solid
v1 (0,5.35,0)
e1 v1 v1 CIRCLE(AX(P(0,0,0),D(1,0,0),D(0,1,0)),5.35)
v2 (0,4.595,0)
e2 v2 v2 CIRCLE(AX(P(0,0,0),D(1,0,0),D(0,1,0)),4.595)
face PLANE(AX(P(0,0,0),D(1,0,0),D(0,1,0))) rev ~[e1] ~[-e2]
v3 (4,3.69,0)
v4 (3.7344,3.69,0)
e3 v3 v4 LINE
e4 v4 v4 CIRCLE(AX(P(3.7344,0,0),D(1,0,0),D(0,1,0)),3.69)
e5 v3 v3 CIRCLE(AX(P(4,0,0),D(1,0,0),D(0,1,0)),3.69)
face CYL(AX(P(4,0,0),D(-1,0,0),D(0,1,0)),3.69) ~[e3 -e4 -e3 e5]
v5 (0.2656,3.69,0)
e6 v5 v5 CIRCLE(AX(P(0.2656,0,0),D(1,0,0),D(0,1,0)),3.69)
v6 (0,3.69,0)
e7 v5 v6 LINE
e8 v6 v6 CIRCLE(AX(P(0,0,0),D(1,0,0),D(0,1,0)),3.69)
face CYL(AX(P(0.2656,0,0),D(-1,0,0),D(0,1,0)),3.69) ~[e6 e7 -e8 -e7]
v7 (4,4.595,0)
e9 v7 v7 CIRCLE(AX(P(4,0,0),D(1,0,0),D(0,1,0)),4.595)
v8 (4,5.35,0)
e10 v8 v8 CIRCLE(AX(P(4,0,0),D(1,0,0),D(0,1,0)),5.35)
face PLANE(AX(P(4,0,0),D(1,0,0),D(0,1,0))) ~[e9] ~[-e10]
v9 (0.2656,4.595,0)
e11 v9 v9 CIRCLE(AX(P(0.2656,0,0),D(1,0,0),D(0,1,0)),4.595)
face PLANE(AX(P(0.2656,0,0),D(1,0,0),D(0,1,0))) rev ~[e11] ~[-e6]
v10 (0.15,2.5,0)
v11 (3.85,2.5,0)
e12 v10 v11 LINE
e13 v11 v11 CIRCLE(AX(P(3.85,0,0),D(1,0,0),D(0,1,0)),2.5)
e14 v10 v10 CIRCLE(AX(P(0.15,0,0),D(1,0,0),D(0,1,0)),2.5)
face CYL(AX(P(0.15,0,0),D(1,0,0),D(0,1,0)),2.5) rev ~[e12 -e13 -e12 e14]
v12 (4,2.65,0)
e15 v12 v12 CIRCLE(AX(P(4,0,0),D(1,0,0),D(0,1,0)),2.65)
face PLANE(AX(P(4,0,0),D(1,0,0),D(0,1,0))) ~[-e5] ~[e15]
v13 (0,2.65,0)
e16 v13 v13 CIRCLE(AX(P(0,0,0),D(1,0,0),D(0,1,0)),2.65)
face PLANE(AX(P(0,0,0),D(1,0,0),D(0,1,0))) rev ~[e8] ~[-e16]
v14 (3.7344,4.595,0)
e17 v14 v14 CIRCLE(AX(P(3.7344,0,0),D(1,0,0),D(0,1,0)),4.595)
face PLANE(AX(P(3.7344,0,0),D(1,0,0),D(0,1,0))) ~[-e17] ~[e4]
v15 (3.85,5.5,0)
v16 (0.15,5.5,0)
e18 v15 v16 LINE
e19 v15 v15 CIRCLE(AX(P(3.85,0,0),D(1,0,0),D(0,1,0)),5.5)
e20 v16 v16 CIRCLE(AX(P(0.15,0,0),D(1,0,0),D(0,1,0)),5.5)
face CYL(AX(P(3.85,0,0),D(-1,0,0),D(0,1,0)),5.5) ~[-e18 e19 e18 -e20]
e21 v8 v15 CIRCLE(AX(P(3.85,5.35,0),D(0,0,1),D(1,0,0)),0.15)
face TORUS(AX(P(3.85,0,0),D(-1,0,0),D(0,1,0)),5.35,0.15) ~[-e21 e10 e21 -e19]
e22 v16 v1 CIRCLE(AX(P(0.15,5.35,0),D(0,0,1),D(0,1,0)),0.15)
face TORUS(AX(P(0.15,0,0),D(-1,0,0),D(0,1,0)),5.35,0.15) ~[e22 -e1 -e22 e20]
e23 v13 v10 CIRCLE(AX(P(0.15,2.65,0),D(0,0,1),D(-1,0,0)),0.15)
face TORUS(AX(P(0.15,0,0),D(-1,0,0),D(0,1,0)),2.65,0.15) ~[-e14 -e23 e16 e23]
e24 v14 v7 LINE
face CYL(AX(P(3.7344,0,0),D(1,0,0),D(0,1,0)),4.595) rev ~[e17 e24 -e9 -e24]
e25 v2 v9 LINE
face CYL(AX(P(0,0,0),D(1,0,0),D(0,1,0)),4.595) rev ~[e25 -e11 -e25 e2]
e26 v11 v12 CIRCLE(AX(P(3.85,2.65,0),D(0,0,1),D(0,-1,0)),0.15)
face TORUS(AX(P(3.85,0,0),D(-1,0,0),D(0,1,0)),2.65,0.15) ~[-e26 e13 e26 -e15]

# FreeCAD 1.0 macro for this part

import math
import FreeCAD as App
import Part
import Sketcher
from FreeCAD import Vector

doc = App.newDocument("Part")
params = doc.addObject("Spreadsheet::Sheet", "Params")
for row, (alias, value) in enumerate([
    ("sketch1_radius", "0.15 mm"),
    ("sketch1_width", "3.7 mm"),
    ("sketch1_height", "1.04 mm"),
    ("revolution_angle", "360 deg"),
], start=1):
    params.set(f"A{row}", alias)
    params.set(f"B{row}", "=" + value)
    params.setAlias(f"B{row}", alias)

body = doc.addObject("PartDesign::Body", "Body")

sketch1 = body.newObject("Sketcher::SketchObject", "Sketch")
sketch1.AttachmentSupport = (doc.getObject("XY_Plane"), [""])
sketch1.MapMode = "FlatFace"
sketch1.addGeometry(Part.LineSegment(Vector(0, 3.69, 0), Vector(0, 2.65, 0)), False)
sketch1.addGeometry(Part.ArcOfCircle(Part.Circle(Vector(0.15, 2.65, 0), Vector(0, 0, 1), 0.15), math.radians(180), math.radians(270)), False)
sketch1.addGeometry(Part.LineSegment(Vector(0.15, 2.5, 0), Vector(3.85, 2.5, 0)), False)
sketch1.addGeometry(Part.ArcOfCircle(Part.Circle(Vector(3.85, 2.65, 0), Vector(0, 0, 1), 0.15), math.radians(-90), math.radians(0)), False)
sketch1.addGeometry(Part.LineSegment(Vector(4, 2.65, 0), Vector(4, 3.69, 0)), False)
sketch1.addGeometry(Part.LineSegment(Vector(4, 3.69, 0), Vector(3.73, 3.69, 0)), False)
sketch1.addGeometry(Part.LineSegment(Vector(3.73, 3.69, 0), Vector(3.73, 4.59, 0)), False)
sketch1.addGeometry(Part.LineSegment(Vector(3.73, 4.59, 0), Vector(4, 4.59, 0)), False)
sketch1.addGeometry(Part.LineSegment(Vector(4, 4.59, 0), Vector(4, 5.35, 0)), False)
sketch1.addGeometry(Part.ArcOfCircle(Part.Circle(Vector(3.85, 5.35, 0), Vector(0, 0, 1), 0.15), math.radians(0), math.radians(90)), False)
sketch1.addGeometry(Part.LineSegment(Vector(3.85, 5.5, 0), Vector(0.15, 5.5, 0)), False)
sketch1.addGeometry(Part.ArcOfCircle(Part.Circle(Vector(0.15, 5.35, 0), Vector(0, 0, 1), 0.15), math.radians(90), math.radians(180)), False)
sketch1.addGeometry(Part.LineSegment(Vector(0, 5.35, 0), Vector(0, 4.59, 0)), False)
sketch1.addGeometry(Part.LineSegment(Vector(0, 4.59, 0), Vector(0.27, 4.59, 0)), False)
sketch1.addGeometry(Part.LineSegment(Vector(0.27, 4.59, 0), Vector(0.27, 3.69, 0)), False)
sketch1.addGeometry(Part.LineSegment(Vector(0.27, 3.69, 0), Vector(0, 3.69, 0)), False)
sketch1.addConstraint(Sketcher.Constraint("Tangent", 0, 2, 1, 1))
sketch1.addConstraint(Sketcher.Constraint("Tangent", 1, 2, 2, 1))
sketch1.addConstraint(Sketcher.Constraint("Tangent", 2, 2, 3, 1))
sketch1.addConstraint(Sketcher.Constraint("Tangent", 3, 2, 4, 1))
sketch1.addConstraint(Sketcher.Constraint("Coincident", 4, 2, 5, 1))
sketch1.addConstraint(Sketcher.Constraint("Coincident", 5, 2, 6, 1))
sketch1.addConstraint(Sketcher.Constraint("Coincident", 6, 2, 7, 1))
sketch1.addConstraint(Sketcher.Constraint("Coincident", 7, 2, 8, 1))
sketch1.addConstraint(Sketcher.Constraint("Tangent", 8, 2, 9, 1))
sketch1.addConstraint(Sketcher.Constraint("Tangent", 9, 2, 10, 1))
sketch1.addConstraint(Sketcher.Constraint("Tangent", 10, 2, 11, 1))
sketch1.addConstraint(Sketcher.Constraint("Tangent", 11, 2, 12, 1))
sketch1.addConstraint(Sketcher.Constraint("Coincident", 12, 2, 13, 1))
sketch1.addConstraint(Sketcher.Constraint("Coincident", 13, 2, 14, 1))
sketch1.addConstraint(Sketcher.Constraint("Coincident", 14, 2, 15, 1))
sketch1.addConstraint(Sketcher.Constraint("Coincident", 15, 2, 0, 1))
sketch1.addConstraint(Sketcher.Constraint("Vertical", 0))
sketch1.addConstraint(Sketcher.Constraint("Horizontal", 2))
sketch1.addConstraint(Sketcher.Constraint("Vertical", 4))
sketch1.addConstraint(Sketcher.Constraint("Horizontal", 5))
sketch1.addConstraint(Sketcher.Constraint("Vertical", 6))
sketch1.addConstraint(Sketcher.Constraint("Horizontal", 7))
sketch1.addConstraint(Sketcher.Constraint("Vertical", 8))
sketch1.addConstraint(Sketcher.Constraint("Horizontal", 10))
sketch1.addConstraint(Sketcher.Constraint("Vertical", 12))
sketch1.addConstraint(Sketcher.Constraint("Horizontal", 13))
sketch1.addConstraint(Sketcher.Constraint("Vertical", 14))
sketch1.addConstraint(Sketcher.Constraint("Horizontal", 15))
sketch1.addConstraint(Sketcher.Constraint("Equal", 1, 3))
sketch1.addConstraint(Sketcher.Constraint("Equal", 3, 9))
sketch1.addConstraint(Sketcher.Constraint("Equal", 9, 11))
sketch1.addConstraint(Sketcher.Constraint("PointOnObject", 0, 2, -2))
sketch1.addConstraint(Sketcher.Constraint("PointOnObject", 11, 2, -2))
sketch1.addConstraint(Sketcher.Constraint("Horizontal", 7, 2, 12, 2))
sketch1.addConstraint(Sketcher.Constraint("Horizontal", 5, 2, 14, 2))
sketch1.addConstraint(Sketcher.Constraint("Vertical", 3, 3, 9, 3))
sketch1.addConstraint(Sketcher.Constraint("Equal", 7, 13))
sketch1.addConstraint(Sketcher.Constraint("Radius", 1, 0.15))
sketch1.addConstraint(Sketcher.Constraint("DistanceX", 2, 1, 2, 2, 3.7))
sketch1.addConstraint(Sketcher.Constraint("DistanceY", 1, 2, 10, 2, 3.0))
sketch1.addConstraint(Sketcher.Constraint("DistanceY", 0, 2, 0, 1, 1.04))
sketch1.addConstraint(Sketcher.Constraint("DistanceY", -1, 1, 1, 2, 2.5))
sketch1.addConstraint(Sketcher.Constraint("DistanceY", 6, 1, 6, 2, 0.905))
sketch1.addConstraint(Sketcher.Constraint("DistanceX", 5, 2, 5, 1, 0.2656))
sketch1.setExpression("Constraints[37]", "Params.sketch1_radius")
sketch1.setExpression("Constraints[38]", "Params.sketch1_width")
sketch1.setExpression("Constraints[40]", "Params.sketch1_height")
revolution = body.newObject("PartDesign::Revolution", "Revolution")
revolution.Profile = sketch1
revolution.ReferenceAxis = (sketch1, ["H_Axis"])
revolution.setExpression("Angle", "Params.revolution_angle")

doc.recompute()
